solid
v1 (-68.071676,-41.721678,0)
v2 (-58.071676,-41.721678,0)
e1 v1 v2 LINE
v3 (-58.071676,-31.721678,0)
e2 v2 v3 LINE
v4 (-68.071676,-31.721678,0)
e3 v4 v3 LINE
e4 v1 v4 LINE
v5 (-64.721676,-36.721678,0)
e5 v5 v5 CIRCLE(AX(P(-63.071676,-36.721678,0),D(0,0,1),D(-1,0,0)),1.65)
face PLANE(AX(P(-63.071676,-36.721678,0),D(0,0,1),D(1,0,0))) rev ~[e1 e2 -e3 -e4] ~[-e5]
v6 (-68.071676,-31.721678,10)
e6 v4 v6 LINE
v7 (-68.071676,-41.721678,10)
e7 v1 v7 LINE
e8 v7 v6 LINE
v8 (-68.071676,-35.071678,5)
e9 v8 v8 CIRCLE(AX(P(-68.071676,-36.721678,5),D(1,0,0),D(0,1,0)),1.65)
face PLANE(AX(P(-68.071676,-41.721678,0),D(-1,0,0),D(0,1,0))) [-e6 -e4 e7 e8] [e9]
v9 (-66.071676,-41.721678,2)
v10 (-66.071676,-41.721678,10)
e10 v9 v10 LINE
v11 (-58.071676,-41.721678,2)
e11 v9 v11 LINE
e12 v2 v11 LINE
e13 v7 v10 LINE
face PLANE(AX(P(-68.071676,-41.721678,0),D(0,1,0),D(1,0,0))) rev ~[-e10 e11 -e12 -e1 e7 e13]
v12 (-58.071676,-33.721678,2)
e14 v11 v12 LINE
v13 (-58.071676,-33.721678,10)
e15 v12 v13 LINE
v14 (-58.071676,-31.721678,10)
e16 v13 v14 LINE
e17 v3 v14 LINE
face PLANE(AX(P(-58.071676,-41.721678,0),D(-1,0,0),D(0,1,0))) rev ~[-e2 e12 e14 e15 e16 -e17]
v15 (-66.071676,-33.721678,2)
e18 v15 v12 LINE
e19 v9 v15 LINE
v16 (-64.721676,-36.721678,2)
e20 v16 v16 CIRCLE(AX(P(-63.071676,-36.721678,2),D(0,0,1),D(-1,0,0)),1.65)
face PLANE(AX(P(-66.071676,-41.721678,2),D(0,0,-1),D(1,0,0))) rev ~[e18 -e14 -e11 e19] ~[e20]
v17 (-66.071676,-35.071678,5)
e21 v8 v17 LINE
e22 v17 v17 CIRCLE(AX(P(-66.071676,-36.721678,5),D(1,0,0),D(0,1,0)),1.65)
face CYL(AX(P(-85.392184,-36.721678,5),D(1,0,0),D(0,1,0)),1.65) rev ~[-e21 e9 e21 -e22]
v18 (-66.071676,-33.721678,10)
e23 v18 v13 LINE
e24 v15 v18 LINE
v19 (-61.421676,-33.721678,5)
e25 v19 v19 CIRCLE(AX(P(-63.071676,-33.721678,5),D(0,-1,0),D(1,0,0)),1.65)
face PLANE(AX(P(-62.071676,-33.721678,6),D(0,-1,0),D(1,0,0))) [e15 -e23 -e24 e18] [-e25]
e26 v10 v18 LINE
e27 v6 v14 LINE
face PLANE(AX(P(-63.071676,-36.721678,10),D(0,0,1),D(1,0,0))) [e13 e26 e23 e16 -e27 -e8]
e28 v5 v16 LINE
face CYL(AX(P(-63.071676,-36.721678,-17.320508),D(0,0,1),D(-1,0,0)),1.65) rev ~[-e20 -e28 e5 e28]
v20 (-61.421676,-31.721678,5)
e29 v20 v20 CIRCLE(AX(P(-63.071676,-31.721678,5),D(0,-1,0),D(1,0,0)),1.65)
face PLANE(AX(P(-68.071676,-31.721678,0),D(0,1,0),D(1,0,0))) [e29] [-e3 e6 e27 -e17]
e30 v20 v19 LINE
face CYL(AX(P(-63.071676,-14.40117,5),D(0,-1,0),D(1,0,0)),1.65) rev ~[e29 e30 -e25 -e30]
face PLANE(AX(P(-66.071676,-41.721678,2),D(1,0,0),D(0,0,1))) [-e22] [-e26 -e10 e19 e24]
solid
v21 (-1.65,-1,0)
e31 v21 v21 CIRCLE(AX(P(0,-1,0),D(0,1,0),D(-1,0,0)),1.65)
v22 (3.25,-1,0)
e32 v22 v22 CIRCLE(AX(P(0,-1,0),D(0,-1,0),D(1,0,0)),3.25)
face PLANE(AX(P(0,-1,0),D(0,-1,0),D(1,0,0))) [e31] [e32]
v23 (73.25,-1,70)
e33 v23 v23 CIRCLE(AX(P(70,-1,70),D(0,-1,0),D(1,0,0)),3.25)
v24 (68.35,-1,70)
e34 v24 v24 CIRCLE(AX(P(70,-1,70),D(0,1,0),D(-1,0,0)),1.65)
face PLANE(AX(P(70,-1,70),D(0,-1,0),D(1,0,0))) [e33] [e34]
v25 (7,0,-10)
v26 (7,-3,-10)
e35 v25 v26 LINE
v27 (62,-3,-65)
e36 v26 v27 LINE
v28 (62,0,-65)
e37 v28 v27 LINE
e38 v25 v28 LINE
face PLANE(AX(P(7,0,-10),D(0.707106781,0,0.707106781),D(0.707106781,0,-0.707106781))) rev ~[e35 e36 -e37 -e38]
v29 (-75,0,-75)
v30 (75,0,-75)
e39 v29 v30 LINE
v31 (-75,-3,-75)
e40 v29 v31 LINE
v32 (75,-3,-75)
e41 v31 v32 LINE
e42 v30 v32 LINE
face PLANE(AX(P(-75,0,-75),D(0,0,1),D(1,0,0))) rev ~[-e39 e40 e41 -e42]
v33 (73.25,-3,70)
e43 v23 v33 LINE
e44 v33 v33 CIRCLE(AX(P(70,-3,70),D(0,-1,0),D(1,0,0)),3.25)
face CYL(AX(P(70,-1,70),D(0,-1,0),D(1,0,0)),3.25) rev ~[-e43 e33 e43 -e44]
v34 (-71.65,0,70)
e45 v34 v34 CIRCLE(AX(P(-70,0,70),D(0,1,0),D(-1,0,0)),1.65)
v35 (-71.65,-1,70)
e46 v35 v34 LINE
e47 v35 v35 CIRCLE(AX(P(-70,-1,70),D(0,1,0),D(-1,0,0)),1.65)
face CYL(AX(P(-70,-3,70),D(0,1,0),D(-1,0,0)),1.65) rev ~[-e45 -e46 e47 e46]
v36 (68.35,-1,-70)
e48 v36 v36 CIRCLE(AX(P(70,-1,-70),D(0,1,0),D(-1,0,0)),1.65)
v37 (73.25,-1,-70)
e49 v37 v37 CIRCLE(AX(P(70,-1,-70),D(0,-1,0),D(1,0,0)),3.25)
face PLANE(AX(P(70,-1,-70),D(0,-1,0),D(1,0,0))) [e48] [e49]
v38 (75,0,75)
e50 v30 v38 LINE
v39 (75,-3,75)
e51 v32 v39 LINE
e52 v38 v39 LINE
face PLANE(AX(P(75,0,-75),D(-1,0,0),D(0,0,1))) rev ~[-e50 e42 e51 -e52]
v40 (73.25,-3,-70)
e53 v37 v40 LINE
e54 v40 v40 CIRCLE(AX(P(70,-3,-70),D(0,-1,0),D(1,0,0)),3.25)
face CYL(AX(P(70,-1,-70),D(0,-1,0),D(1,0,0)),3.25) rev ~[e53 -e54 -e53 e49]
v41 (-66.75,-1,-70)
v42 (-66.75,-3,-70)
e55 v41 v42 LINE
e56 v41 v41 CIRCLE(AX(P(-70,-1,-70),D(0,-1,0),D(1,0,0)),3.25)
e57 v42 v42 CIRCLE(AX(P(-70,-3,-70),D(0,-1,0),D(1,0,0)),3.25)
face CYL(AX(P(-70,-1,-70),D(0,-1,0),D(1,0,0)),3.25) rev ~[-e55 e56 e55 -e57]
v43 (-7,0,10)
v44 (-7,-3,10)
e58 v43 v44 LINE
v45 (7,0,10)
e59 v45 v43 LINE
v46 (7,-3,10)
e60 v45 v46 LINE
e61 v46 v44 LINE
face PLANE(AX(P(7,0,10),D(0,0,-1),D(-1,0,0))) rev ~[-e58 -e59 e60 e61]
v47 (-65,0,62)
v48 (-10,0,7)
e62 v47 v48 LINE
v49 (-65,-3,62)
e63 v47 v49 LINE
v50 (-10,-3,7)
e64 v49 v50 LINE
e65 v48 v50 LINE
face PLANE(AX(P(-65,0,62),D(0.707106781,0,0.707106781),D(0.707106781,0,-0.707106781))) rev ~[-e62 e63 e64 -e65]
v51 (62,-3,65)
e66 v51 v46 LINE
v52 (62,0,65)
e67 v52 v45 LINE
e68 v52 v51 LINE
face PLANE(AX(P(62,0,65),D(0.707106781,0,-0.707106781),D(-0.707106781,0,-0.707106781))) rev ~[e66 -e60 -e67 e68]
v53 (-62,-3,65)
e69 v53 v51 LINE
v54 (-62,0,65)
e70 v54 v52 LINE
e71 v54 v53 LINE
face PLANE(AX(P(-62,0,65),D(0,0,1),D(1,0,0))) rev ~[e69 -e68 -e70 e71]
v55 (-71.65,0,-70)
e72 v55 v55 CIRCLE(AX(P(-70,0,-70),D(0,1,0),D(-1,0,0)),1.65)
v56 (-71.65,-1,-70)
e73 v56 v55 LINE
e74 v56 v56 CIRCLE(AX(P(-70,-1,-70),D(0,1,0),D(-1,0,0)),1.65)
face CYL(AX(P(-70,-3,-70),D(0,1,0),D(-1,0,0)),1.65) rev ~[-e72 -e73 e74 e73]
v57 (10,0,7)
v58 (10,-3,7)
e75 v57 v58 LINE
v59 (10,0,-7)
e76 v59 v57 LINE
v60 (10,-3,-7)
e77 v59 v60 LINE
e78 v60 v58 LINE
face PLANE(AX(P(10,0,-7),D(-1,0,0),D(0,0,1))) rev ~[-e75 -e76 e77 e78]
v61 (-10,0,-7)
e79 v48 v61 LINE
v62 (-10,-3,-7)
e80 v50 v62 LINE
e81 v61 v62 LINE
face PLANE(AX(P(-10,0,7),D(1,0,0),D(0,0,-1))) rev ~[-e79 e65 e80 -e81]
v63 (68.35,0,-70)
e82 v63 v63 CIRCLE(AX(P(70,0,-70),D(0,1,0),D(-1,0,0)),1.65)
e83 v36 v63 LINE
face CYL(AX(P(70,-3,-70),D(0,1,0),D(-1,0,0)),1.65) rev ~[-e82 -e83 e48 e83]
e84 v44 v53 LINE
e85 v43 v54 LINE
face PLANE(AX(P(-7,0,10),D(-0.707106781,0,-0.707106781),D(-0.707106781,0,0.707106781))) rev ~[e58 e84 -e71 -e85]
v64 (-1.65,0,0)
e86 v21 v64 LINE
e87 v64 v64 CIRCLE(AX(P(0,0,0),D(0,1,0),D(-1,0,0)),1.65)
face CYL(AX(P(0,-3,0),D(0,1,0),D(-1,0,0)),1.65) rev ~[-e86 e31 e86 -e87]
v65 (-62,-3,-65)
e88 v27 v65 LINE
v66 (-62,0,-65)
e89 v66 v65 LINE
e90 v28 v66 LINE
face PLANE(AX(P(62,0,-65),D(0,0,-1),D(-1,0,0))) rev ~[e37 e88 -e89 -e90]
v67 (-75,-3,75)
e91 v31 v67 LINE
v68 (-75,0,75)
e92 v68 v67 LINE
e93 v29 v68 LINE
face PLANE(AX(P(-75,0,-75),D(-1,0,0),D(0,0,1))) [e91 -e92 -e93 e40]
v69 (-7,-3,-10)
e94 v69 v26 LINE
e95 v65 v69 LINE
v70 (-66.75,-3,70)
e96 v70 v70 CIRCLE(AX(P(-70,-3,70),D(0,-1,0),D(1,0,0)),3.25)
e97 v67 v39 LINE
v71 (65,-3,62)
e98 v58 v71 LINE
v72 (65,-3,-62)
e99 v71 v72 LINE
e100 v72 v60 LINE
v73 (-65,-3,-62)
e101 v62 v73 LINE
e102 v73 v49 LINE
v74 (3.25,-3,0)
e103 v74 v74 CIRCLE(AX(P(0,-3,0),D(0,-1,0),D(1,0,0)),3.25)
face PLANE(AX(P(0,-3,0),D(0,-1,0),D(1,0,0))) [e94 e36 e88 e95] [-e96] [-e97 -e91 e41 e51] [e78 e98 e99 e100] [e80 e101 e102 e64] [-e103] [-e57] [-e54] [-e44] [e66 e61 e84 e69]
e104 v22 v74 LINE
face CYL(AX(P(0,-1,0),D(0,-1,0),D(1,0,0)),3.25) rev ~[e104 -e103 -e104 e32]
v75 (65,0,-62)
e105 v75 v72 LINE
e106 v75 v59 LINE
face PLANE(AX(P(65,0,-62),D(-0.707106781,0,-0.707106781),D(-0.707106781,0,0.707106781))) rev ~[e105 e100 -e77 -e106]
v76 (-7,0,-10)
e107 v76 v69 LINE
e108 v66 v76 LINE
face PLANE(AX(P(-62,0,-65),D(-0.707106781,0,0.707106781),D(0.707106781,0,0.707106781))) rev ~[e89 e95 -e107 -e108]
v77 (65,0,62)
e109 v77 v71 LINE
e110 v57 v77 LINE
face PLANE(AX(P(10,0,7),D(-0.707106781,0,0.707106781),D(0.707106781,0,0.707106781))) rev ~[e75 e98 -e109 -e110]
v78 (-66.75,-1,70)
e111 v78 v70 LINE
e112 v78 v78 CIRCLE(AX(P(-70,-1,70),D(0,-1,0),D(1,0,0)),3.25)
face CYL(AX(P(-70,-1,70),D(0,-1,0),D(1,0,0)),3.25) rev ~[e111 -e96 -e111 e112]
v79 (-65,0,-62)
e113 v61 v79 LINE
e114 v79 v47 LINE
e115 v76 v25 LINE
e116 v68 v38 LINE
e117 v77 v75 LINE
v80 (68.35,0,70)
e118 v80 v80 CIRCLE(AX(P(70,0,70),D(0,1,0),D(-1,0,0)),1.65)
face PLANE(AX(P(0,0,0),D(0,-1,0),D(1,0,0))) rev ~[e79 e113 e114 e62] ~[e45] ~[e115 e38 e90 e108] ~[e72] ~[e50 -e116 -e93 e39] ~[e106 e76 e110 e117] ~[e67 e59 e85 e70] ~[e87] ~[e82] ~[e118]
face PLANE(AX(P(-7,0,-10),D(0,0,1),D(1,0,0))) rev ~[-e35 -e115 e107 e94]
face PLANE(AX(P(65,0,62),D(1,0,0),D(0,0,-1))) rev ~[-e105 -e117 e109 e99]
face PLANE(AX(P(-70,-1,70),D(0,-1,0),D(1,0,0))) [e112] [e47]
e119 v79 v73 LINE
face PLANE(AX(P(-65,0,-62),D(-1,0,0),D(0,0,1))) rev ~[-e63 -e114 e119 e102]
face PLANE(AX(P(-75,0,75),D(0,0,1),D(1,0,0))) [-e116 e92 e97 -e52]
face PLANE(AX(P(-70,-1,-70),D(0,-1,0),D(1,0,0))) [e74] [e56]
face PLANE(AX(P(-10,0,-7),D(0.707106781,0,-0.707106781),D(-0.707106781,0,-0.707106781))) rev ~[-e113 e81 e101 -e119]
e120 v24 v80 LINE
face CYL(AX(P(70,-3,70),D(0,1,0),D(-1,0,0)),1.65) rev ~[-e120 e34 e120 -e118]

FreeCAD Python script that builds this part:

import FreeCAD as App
import Part
import Sketcher

doc = App.newDocument("Part")
params = doc.addObject("Spreadsheet::Sheet", "Params")
for row, (alias, value) in enumerate([
    ("sketch1_width", "150 mm"),
    ("sketch1_width2", "124 mm"),
    ("sketch1_width3", "14 mm"),
    ("pad1_length", "3 mm"),
    ("sketch2_diameter", "3.3 mm"),
    ("hole_diameter", "3.3 mm"),
    ("hole_cbore_diameter", "6.5 mm"),
    ("hole_cbore_depth", "2 mm"),
    ("sketch3_width", "10 mm"),
    ("pad2_length", "10 mm"),
    ("sketch4_width", "8 mm"),
    ("pocket1_length", "8 mm"),
    ("sketch5_diameter", "3.3 mm"),
    ("hole2_diameter", "3.3 mm"),
    ("sketch6_diameter", "3.3 mm"),
    ("hole3_diameter", "3.3 mm"),
    ("sketch7_diameter", "3.3 mm"),
    ("hole4_diameter", "3.3 mm"),
], start=1):
    params.set(f"A{row}", alias)
    params.set(f"B{row}", "=" + value)
    params.setAlias(f"B{row}", alias)

body = doc.addObject("PartDesign::Body", "Body")

sketch1 = body.newObject("Sketcher::SketchObject", "Sketch")
sketch1.AttachmentSupport = (doc.getObject("XZ_Plane"), [""])
sketch1.MapMode = "FlatFace"
sketch1.addGeometry([
    Part.LineSegment(App.Vector(-75, 75, 0), App.Vector(-75, -75, 0)),
    Part.LineSegment(App.Vector(-75, -75, 0), App.Vector(75, -75, 0)),
    Part.LineSegment(App.Vector(75, -75, 0), App.Vector(75, 75, 0)),
    Part.LineSegment(App.Vector(75, 75, 0), App.Vector(-75, 75, 0)),
    Part.LineSegment(App.Vector(7, -10, 0), App.Vector(62, -65, 0)),
    Part.LineSegment(App.Vector(62, -65, 0), App.Vector(-62, -65, 0)),
    Part.LineSegment(App.Vector(-62, -65, 0), App.Vector(-7, -10, 0)),
    Part.LineSegment(App.Vector(-7, -10, 0), App.Vector(7, -10, 0)),
    Part.LineSegment(App.Vector(-65, 62, 0), App.Vector(-10, 7, 0)),
    Part.LineSegment(App.Vector(-10, 7, 0), App.Vector(-10, -7, 0)),
    Part.LineSegment(App.Vector(-10, -7, 0), App.Vector(-65, -62, 0)),
    Part.LineSegment(App.Vector(-65, -62, 0), App.Vector(-65, 62, 0)),
    Part.LineSegment(App.Vector(65, 62, 0), App.Vector(65, -62, 0)),
    Part.LineSegment(App.Vector(65, -62, 0), App.Vector(10, -7, 0)),
    Part.LineSegment(App.Vector(10, -7, 0), App.Vector(10, 7, 0)),
    Part.LineSegment(App.Vector(10, 7, 0), App.Vector(65, 62, 0)),
    Part.LineSegment(App.Vector(7, 10, 0), App.Vector(-7, 10, 0)),
    Part.LineSegment(App.Vector(-7, 10, 0), App.Vector(-62, 65, 0)),
    Part.LineSegment(App.Vector(-62, 65, 0), App.Vector(62, 65, 0)),
    Part.LineSegment(App.Vector(62, 65, 0), App.Vector(7, 10, 0)),
], False)
sketch1.addConstraint([
    Sketcher.Constraint("Coincident", 0, 2, 1, 1),
    Sketcher.Constraint("Coincident", 1, 2, 2, 1),
    Sketcher.Constraint("Coincident", 2, 2, 3, 1),
    Sketcher.Constraint("Coincident", 3, 2, 0, 1),
    Sketcher.Constraint("Coincident", 4, 2, 5, 1),
    Sketcher.Constraint("Coincident", 5, 2, 6, 1),
    Sketcher.Constraint("Coincident", 6, 2, 7, 1),
    Sketcher.Constraint("Coincident", 7, 2, 4, 1),
    Sketcher.Constraint("Coincident", 8, 2, 9, 1),
    Sketcher.Constraint("Coincident", 9, 2, 10, 1),
    Sketcher.Constraint("Coincident", 10, 2, 11, 1),
    Sketcher.Constraint("Coincident", 11, 2, 8, 1),
    Sketcher.Constraint("Coincident", 12, 2, 13, 1),
    Sketcher.Constraint("Coincident", 13, 2, 14, 1),
    Sketcher.Constraint("Coincident", 14, 2, 15, 1),
    Sketcher.Constraint("Coincident", 15, 2, 12, 1),
    Sketcher.Constraint("Coincident", 16, 2, 17, 1),
    Sketcher.Constraint("Coincident", 17, 2, 18, 1),
    Sketcher.Constraint("Coincident", 18, 2, 19, 1),
    Sketcher.Constraint("Coincident", 19, 2, 16, 1),
    Sketcher.Constraint("Vertical", 0),
    Sketcher.Constraint("Horizontal", 1),
    Sketcher.Constraint("Vertical", 2),
    Sketcher.Constraint("Horizontal", 3),
    Sketcher.Constraint("Horizontal", 5),
    Sketcher.Constraint("Horizontal", 7),
    Sketcher.Constraint("Vertical", 9),
    Sketcher.Constraint("Vertical", 11),
    Sketcher.Constraint("Vertical", 12),
    Sketcher.Constraint("Vertical", 14),
    Sketcher.Constraint("Horizontal", 16),
    Sketcher.Constraint("Horizontal", 18),
    Sketcher.Constraint("Symmetric", 0, 2, 2, 2, -1, 1),
    Sketcher.Constraint("Symmetric", 11, 2, 12, 2, -1, 1),
    Sketcher.Constraint("Symmetric", 8, 2, 13, 2, -1, 1),
    Sketcher.Constraint("Symmetric", 7, 2, 16, 2, -1, 1),
    Sketcher.Constraint("Symmetric", 4, 2, 17, 2, -1, 1),
    Sketcher.Constraint("Perpendicular", 4, 6),
    Sketcher.Constraint("Perpendicular", 6, 8),
    Sketcher.Constraint("Perpendicular", 8, 10),
    Sketcher.Constraint("Perpendicular", 13, 15),
    Sketcher.Constraint("Perpendicular", 17, 19),
    Sketcher.Constraint("Horizontal", 10, 2, 12, 2),
    Sketcher.Constraint("Horizontal", 9, 2, 13, 2),
    Sketcher.Constraint("Horizontal", 8, 2, 14, 2),
    Sketcher.Constraint("Vertical", 6, 2, 16, 2),
    Sketcher.Constraint("Vertical", 4, 2, 18, 2),
    Sketcher.Constraint("Equal", 3, 0),
    Sketcher.Constraint("Equal", 16, 9),
    Sketcher.Constraint("Equal", 18, 11),
    Sketcher.Constraint("DistanceX", 1, 1, 1, 2, 150.0),
    Sketcher.Constraint("DistanceX", 5, 2, 5, 1, 124.0),
    Sketcher.Constraint("DistanceX", 7, 1, 7, 2, 14.0),
    Sketcher.Constraint("DistanceY", 4, 2, -1, 1, 65.0),
    Sketcher.Constraint("DistanceX", 8, 2, -1, 1, 10.0),
])
sketch1.setExpression("Constraints[50]", "Params.sketch1_width")
sketch1.setExpression("Constraints[51]", "Params.sketch1_width2")
sketch1.setExpression("Constraints[52]", "Params.sketch1_width3")
pad1 = body.newObject("PartDesign::Pad", "Pad")
pad1.Profile = sketch1
pad1.setExpression("Length", "Params.pad1_length")

sketch2 = body.newObject("Sketcher::SketchObject", "Sketch001")
sketch2.AttachmentSupport = (doc.getObject("XZ_Plane"), [""])
sketch2.MapMode = "FlatFace"
sketch2.AttachmentOffset = App.Placement(App.Vector(0, 0, 3), App.Rotation())
sketch2.addGeometry([
    Part.Circle(App.Vector(0, 0, 0), App.Vector(0, 0, 1), 1.6),
    Part.Circle(App.Vector(-70, 70, 0), App.Vector(0, 0, 1), 1.6),
    Part.Circle(App.Vector(70, 70, 0), App.Vector(0, 0, 1), 1.6),
    Part.Circle(App.Vector(70, -70, 0), App.Vector(0, 0, 1), 1.6),
    Part.Circle(App.Vector(-70, -70, 0), App.Vector(0, 0, 1), 1.6),
], False)
sketch2.addConstraint([
    Sketcher.Constraint("Coincident", 0, 3, -1, 1),
    Sketcher.Constraint("Equal", 0, 1),
    Sketcher.Constraint("Equal", 1, 2),
    Sketcher.Constraint("Equal", 2, 3),
    Sketcher.Constraint("Equal", 3, 4),
    Sketcher.Constraint("Symmetric", 1, 3, 3, 3, -1, 1),
    Sketcher.Constraint("Symmetric", 2, 3, 4, 3, -1, 1),
    Sketcher.Constraint("Symmetric", 1, 3, 2, 3, -2),
    Sketcher.Constraint("Diameter", 0, 3.3),
    Sketcher.Constraint("DistanceX", 1, 3, -1, 1, 70.0),
    Sketcher.Constraint("DistanceY", -1, 1, 1, 3, 70.0),
])
sketch2.setExpression("Constraints[8]", "Params.sketch2_diameter")
doc.recompute()
hole = body.newObject("PartDesign::Hole", "Hole")
hole.Profile = sketch2
hole.ThreadType = "None"
hole.setExpression("Diameter", "Params.hole_diameter")
hole.DepthType = "ThroughAll"
hole.HoleCutType = "Counterbore"
hole.setExpression("HoleCutDiameter", "Params.hole_cbore_diameter")
hole.setExpression("HoleCutDepth", "Params.hole_cbore_depth")
body2 = doc.addObject("PartDesign::Body", "Body001")

sketch3 = body2.newObject("Sketcher::SketchObject", "Sketch002")
sketch3.AttachmentSupport = (doc.getObject("XY_Plane001"), [""])
sketch3.MapMode = "FlatFace"
sketch3.addGeometry([
    Part.LineSegment(App.Vector(-68, -32, 0), App.Vector(-68, -42, 0)),
    Part.LineSegment(App.Vector(-68, -42, 0), App.Vector(-58, -42, 0)),
    Part.LineSegment(App.Vector(-58, -42, 0), App.Vector(-58, -32, 0)),
    Part.LineSegment(App.Vector(-58, -32, 0), App.Vector(-68, -32, 0)),
], False)
sketch3.addConstraint([
    Sketcher.Constraint("Coincident", 0, 2, 1, 1),
    Sketcher.Constraint("Coincident", 1, 2, 2, 1),
    Sketcher.Constraint("Coincident", 2, 2, 3, 1),
    Sketcher.Constraint("Coincident", 3, 2, 0, 1),
    Sketcher.Constraint("Vertical", 0),
    Sketcher.Constraint("Horizontal", 1),
    Sketcher.Constraint("Vertical", 2),
    Sketcher.Constraint("Horizontal", 3),
    Sketcher.Constraint("Equal", 3, 0),
    Sketcher.Constraint("DistanceX", 1, 1, 1, 2, 10.0),
    Sketcher.Constraint("DistanceX", 0, 2, -1, 1, 68.071676),
    Sketcher.Constraint("DistanceY", 0, 2, -1, 1, 41.721678),
])
sketch3.setExpression("Constraints[9]", "Params.sketch3_width")
pad2 = body2.newObject("PartDesign::Pad", "Pad001")
pad2.Profile = sketch3
pad2.setExpression("Length", "Params.pad2_length")

sketch4 = body2.newObject("Sketcher::SketchObject", "Sketch003")
sketch4.AttachmentSupport = (doc.getObject("XZ_Plane001"), [""])
sketch4.MapMode = "FlatFace"
sketch4.AttachmentOffset = App.Placement(App.Vector(0, 0, 41.721678), App.Rotation())
sketch4.addGeometry([
    Part.LineSegment(App.Vector(-66, 10, 0), App.Vector(-66, 2, 0)),
    Part.LineSegment(App.Vector(-66, 2, 0), App.Vector(-58, 2, 0)),
    Part.LineSegment(App.Vector(-58, 2, 0), App.Vector(-58, 10, 0)),
    Part.LineSegment(App.Vector(-58, 10, 0), App.Vector(-66, 10, 0)),
], False)
sketch4.addConstraint([
    Sketcher.Constraint("Coincident", 0, 2, 1, 1),
    Sketcher.Constraint("Coincident", 1, 2, 2, 1),
    Sketcher.Constraint("Coincident", 2, 2, 3, 1),
    Sketcher.Constraint("Coincident", 3, 2, 0, 1),
    Sketcher.Constraint("Vertical", 0),
    Sketcher.Constraint("Horizontal", 1),
    Sketcher.Constraint("Vertical", 2),
    Sketcher.Constraint("Horizontal", 3),
    Sketcher.Constraint("Equal", 3, 0),
    Sketcher.Constraint("DistanceX", 1, 1, 1, 2, 8.0),
    Sketcher.Constraint("DistanceY", -1, 1, 0, 2, 2.0),
    Sketcher.Constraint("DistanceX", 0, 2, -1, 1, 66.071676),
])
sketch4.setExpression("Constraints[9]", "Params.sketch4_width")
pocket1 = body2.newObject("PartDesign::Pocket", "Pocket")
pocket1.Profile = sketch4
pocket1.setExpression("Length", "Params.pocket1_length")

sketch5 = body2.newObject("Sketcher::SketchObject", "Sketch004")
sketch5.AttachmentSupport = (doc.getObject("XZ_Plane001"), [""])
sketch5.MapMode = "FlatFace"
sketch5.AttachmentOffset = App.Placement(App.Vector(0, 0, 31.721678), App.Rotation())
sketch5.addGeometry(Part.Circle(App.Vector(-63.1, 5, 0), App.Vector(0, 0, 1), 1.6), False)
sketch5.addConstraint([
    Sketcher.Constraint("Diameter", 0, 3.3),
    Sketcher.Constraint("DistanceY", -1, 1, 0, 3, 5.0),
    Sketcher.Constraint("DistanceX", 0, 3, -1, 1, 63.071676),
])
sketch5.setExpression("Constraints[0]", "Params.sketch5_diameter")
doc.recompute()
hole2 = body2.newObject("PartDesign::Hole", "Hole001")
hole2.Profile = sketch5
hole2.ThreadType = "None"
hole2.setExpression("Diameter", "Params.hole2_diameter")
hole2.DepthType = "ThroughAll"
hole2.Reversed = True

sketch6 = body2.newObject("Sketcher::SketchObject", "Sketch005")
sketch6.AttachmentSupport = (doc.getObject("YZ_Plane001"), [""])
sketch6.MapMode = "FlatFace"
sketch6.AttachmentOffset = App.Placement(App.Vector(0, 0, -68.071676), App.Rotation())
sketch6.addGeometry(Part.Circle(App.Vector(-36.7, 5, 0), App.Vector(0, 0, 1), 1.6), False)
sketch6.addConstraint([
    Sketcher.Constraint("Diameter", 0, 3.3),
    Sketcher.Constraint("DistanceY", -1, 1, 0, 3, 5.0),
    Sketcher.Constraint("DistanceX", 0, 3, -1, 1, 36.721678),
])
sketch6.setExpression("Constraints[0]", "Params.sketch6_diameter")
doc.recompute()
hole3 = body2.newObject("PartDesign::Hole", "Hole002")
hole3.Profile = sketch6
hole3.ThreadType = "None"
hole3.setExpression("Diameter", "Params.hole3_diameter")
hole3.DepthType = "ThroughAll"
hole3.Reversed = True

sketch7 = body2.newObject("Sketcher::SketchObject", "Sketch006")
sketch7.AttachmentSupport = (doc.getObject("XY_Plane001"), [""])
sketch7.MapMode = "FlatFace"
sketch7.addGeometry(Part.Circle(App.Vector(-63.1, -36.7, 0), App.Vector(0, 0, 1), 1.6), False)
sketch7.addConstraint([
    Sketcher.Constraint("Diameter", 0, 3.3),
    Sketcher.Constraint("DistanceX", 0, 3, -1, 1, 63.071676),
    Sketcher.Constraint("DistanceY", 0, 3, -1, 1, 36.721678),
])
sketch7.setExpression("Constraints[0]", "Params.sketch7_diameter")
doc.recompute()
hole4 = body2.newObject("PartDesign::Hole", "Hole003")
hole4.Profile = sketch7
hole4.ThreadType = "None"
hole4.setExpression("Diameter", "Params.hole4_diameter")
hole4.DepthType = "ThroughAll"
hole4.Reversed = True

doc.recompute()
